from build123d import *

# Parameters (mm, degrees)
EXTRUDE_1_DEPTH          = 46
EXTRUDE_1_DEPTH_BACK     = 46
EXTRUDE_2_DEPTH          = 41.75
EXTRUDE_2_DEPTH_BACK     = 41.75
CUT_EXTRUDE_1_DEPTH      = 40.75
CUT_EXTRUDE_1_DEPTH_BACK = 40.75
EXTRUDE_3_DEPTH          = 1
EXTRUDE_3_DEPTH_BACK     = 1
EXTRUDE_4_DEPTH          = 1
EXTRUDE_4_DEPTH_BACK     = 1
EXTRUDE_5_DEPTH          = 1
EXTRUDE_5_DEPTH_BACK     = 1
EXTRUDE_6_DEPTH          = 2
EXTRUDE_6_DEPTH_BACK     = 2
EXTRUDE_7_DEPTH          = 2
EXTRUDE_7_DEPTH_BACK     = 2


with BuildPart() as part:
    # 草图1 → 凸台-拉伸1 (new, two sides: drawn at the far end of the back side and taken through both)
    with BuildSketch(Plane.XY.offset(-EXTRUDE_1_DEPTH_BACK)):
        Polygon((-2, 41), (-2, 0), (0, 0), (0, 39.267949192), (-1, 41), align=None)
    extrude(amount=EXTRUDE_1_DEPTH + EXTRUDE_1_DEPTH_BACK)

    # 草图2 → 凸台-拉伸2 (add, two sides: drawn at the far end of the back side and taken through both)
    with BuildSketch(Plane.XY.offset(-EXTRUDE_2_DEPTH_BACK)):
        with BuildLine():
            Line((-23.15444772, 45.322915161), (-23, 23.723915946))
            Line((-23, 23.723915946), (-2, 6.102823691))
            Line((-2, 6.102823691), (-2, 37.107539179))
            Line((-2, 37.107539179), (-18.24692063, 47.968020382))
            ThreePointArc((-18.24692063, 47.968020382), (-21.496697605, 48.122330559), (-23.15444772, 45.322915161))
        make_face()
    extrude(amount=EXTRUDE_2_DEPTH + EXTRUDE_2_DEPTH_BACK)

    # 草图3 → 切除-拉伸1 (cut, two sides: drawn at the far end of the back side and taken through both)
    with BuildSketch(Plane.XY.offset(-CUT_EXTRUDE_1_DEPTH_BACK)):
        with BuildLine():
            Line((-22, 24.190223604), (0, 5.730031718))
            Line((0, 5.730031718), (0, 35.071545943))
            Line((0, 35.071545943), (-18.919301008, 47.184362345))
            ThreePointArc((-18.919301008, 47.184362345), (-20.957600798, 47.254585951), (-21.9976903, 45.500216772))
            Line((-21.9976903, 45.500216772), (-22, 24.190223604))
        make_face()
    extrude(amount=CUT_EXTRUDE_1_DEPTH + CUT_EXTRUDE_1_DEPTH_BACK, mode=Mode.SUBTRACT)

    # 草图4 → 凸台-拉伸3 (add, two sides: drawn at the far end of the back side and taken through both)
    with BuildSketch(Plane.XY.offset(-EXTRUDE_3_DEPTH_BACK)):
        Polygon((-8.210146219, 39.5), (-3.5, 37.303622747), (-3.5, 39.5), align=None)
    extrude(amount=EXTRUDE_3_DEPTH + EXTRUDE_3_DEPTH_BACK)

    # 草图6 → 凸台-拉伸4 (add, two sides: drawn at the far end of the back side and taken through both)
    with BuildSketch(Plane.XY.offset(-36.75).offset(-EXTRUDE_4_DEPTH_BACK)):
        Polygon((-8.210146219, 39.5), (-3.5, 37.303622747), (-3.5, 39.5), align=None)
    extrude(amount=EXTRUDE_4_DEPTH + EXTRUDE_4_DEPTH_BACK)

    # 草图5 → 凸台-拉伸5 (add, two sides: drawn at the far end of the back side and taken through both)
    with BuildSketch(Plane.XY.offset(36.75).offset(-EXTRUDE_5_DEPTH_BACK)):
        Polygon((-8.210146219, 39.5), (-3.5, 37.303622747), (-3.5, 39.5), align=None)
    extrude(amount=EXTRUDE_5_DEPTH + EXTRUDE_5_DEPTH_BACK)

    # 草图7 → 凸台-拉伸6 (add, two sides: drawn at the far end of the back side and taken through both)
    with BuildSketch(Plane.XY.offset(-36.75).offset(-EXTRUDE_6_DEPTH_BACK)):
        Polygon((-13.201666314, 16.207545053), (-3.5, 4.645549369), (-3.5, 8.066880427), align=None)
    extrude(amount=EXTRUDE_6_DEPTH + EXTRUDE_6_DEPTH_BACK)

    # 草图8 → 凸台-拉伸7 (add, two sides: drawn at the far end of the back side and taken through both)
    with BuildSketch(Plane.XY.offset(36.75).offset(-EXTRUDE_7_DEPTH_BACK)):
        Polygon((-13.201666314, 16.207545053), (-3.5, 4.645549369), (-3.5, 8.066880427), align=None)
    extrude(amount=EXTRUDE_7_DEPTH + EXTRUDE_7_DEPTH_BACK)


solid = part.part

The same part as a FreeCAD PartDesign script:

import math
import FreeCAD as App
import Part
import Sketcher
from FreeCAD import Vector
Q = App.Units.Quantity


def add_polygon(sketch, points):
    """Adds a closed chain of lines whose ends are joined by coincident constraints."""
    first, n = sketch.GeometryCount, len(points)
    for a, b in zip(points, points[1:] + points[:1]):
        sketch.addGeometry(Part.LineSegment(App.Vector(*a, 0), App.Vector(*b, 0)), False)
    for i in range(n):
        sketch.addConstraint(Sketcher.Constraint("Coincident", first + i, 2, first + (i + 1) % n, 1))

doc = App.newDocument("Part")
body = doc.addObject("PartDesign::Body", "Body")

# Sketch on XY plane
sketch1 = body.newObject("Sketcher::SketchObject", "Sketch")
sketch1.AttachmentSupport = (doc.getObject("XY_Plane"), [""])
sketch1.MapMode = "FlatFace"
add_polygon(sketch1, [(-2, 41), (-2, 0), (0, 0), (0, 39.3), (-1, 41)])  # lines 0-4
sketch1.addConstraint(Sketcher.Constraint("Vertical", 0))
sketch1.addConstraint(Sketcher.Constraint("Horizontal", 1))
sketch1.addConstraint(Sketcher.Constraint("Vertical", 2))
sketch1.addConstraint(Sketcher.Constraint("Horizontal", 4))
sketch1.addConstraint(Sketcher.Constraint("Coincident", 1, 2, -1, 1))
sketch1.addConstraint(Sketcher.Constraint("DistanceX", 1, 1, 1, 2, Q("2 mm")))
sketch1.addConstraint(Sketcher.Constraint("DistanceX", 4, 2, 4, 1, Q("1 mm")))
sketch1.addConstraint(Sketcher.Constraint("DistanceY", 0, 2, 0, 1, Q("41 mm")))
sketch1.addConstraint(Sketcher.Constraint("Angle", 3, Q("120 deg")))
pad1 = body.newObject("PartDesign::Pad", "Pad")
pad1.Profile = sketch1
pad1.Type = "TwoLengths"
pad1.Length = 46
pad1.Length2 = 46

# Sketch on XY plane
sketch2 = body.newObject("Sketcher::SketchObject", "Sketch001")
sketch2.AttachmentSupport = (doc.getObject("XY_Plane"), [""])
sketch2.MapMode = "FlatFace"
sketch2.addGeometry(Part.LineSegment(Vector(-23.2, 45.3, 0), Vector(-23, 23.7, 0)), False)
sketch2.addGeometry(Part.LineSegment(Vector(-23, 23.7, 0), Vector(-2, 6.1, 0)), False)
sketch2.addGeometry(Part.LineSegment(Vector(-2, 6.1, 0), Vector(-2, 37.1, 0)), False)
sketch2.addGeometry(Part.LineSegment(Vector(-2, 37.1, 0), Vector(-18.2, 48, 0)), False)
sketch2.addGeometry(Part.ArcOfCircle(Part.Circle(Vector(-20, 45.3, 0), Vector(0, 0, 1), 3.2), math.radians(56), math.radians(180)), False)
sketch2.addConstraint(Sketcher.Constraint("Coincident", 0, 2, 1, 1))
sketch2.addConstraint(Sketcher.Constraint("Coincident", 1, 2, 2, 1))
sketch2.addConstraint(Sketcher.Constraint("Coincident", 2, 2, 3, 1))
sketch2.addConstraint(Sketcher.Constraint("Tangent", 3, 2, 4, 1))
sketch2.addConstraint(Sketcher.Constraint("Tangent", 4, 2, 0, 1))
sketch2.addConstraint(Sketcher.Constraint("Vertical", 2))
sketch2.addConstraint(Sketcher.Constraint("Angle", 1, Q("-40 deg")))
sketch2.addConstraint(Sketcher.Constraint("DistanceX", 4, 3, -1, 1, Q("20 mm")))
sketch2.addConstraint(Sketcher.Constraint("DistanceX", 0, 2, -1, 1, Q("23 mm")))
sketch2.addConstraint(Sketcher.Constraint("DistanceX", 1, 2, -1, 1, Q("2 mm")))
sketch2.addConstraint(Sketcher.Constraint("Radius", 4, Q("3.154528 mm")))
sketch2.addConstraint(Sketcher.Constraint("DistanceY", 0, 2, 4, 2, Q("21.598999 mm")))
sketch2.addConstraint(Sketcher.Constraint("Distance", 3, Q("19.542581 mm")))
sketch2.addConstraint(Sketcher.Constraint("DistanceY", -1, 1, 4, 3, Q("45.345472 mm")))
pad2 = body.newObject("PartDesign::Pad", "Pad001")
pad2.Profile = sketch2
pad2.Type = "TwoLengths"
pad2.Length = 41.75
pad2.Length2 = 41.75

# Sketch on XY plane
sketch3 = body.newObject("Sketcher::SketchObject", "Sketch002")
sketch3.AttachmentSupport = (doc.getObject("XY_Plane"), [""])
sketch3.MapMode = "FlatFace"
sketch3.addGeometry(Part.LineSegment(Vector(-22, 24.2, 0), Vector(0, 5.7, 0)), False)
sketch3.addGeometry(Part.LineSegment(Vector(0, 5.7, 0), Vector(0, 35.1, 0)), False)
sketch3.addGeometry(Part.LineSegment(Vector(0, 35.1, 0), Vector(-18.9, 47.2, 0)), False)
sketch3.addGeometry(Part.ArcOfCircle(Part.Circle(Vector(-20, 45.5, 0), Vector(0, 0, 1), 2), math.radians(57), math.radians(180)), False)
sketch3.addGeometry(Part.LineSegment(Vector(-22, 45.5, 0), Vector(-22, 24.2, 0)), False)
sketch3.addConstraint(Sketcher.Constraint("Coincident", 0, 2, 1, 1))
sketch3.addConstraint(Sketcher.Constraint("Coincident", 1, 2, 2, 1))
sketch3.addConstraint(Sketcher.Constraint("Tangent", 2, 2, 3, 1))
sketch3.addConstraint(Sketcher.Constraint("Tangent", 3, 2, 4, 1))
sketch3.addConstraint(Sketcher.Constraint("Coincident", 4, 2, 0, 1))
sketch3.addConstraint(Sketcher.Constraint("Vertical", 1))
sketch3.addConstraint(Sketcher.Constraint("PointOnObject", 0, 2, -2))
sketch3.addConstraint(Sketcher.Constraint("Radius", 3, Q("2 mm")))
sketch3.addConstraint(Sketcher.Constraint("Angle", 0, Q("-40 deg")))
sketch3.addConstraint(Sketcher.Constraint("DistanceX", 4, 2, -1, 1, Q("22 mm")))
sketch3.addConstraint(Sketcher.Constraint("DistanceY", -1, 1, 3, 3, Q("45.5 mm")))
sketch3.addConstraint(Sketcher.Constraint("DistanceX", 2, 2, -1, 1, Q("18.919301 mm")))
sketch3.addConstraint(Sketcher.Constraint("DistanceY", 1, 1, 1, 2, Q("29.341514 mm")))
sketch3.addConstraint(Sketcher.Constraint("DistanceX", 3, 3, -1, 1, Q("19.99769 mm")))
pocket1 = body.newObject("PartDesign::Pocket", "Pocket")
pocket1.Profile = sketch3
pocket1.Type = "TwoLengths"
pocket1.Length = 40.75
pocket1.Length2 = 40.75
pocket1.Reversed = True

# Sketch on XY plane
sketch4 = body.newObject("Sketcher::SketchObject", "Sketch003")
sketch4.AttachmentSupport = (doc.getObject("XY_Plane"), [""])
sketch4.MapMode = "FlatFace"
add_polygon(sketch4, [(-8.2, 39.5), (-3.5, 37.3), (-3.5, 39.5)])  # lines 0-2
sketch4.addConstraint(Sketcher.Constraint("Vertical", 1))
sketch4.addConstraint(Sketcher.Constraint("Horizontal", 2))
sketch4.addConstraint(Sketcher.Constraint("Angle", 0, Q("-25 deg")))
sketch4.addConstraint(Sketcher.Constraint("DistanceX", 0, 2, -1, 1, Q("3.5 mm")))
sketch4.addConstraint(Sketcher.Constraint("DistanceY", -1, 1, 1, 2, Q("39.5 mm")))
sketch4.addConstraint(Sketcher.Constraint("Distance", 0, Q("5.197071 mm")))
pad3 = body.newObject("PartDesign::Pad", "Pad002")
pad3.Profile = sketch4
pad3.Type = "TwoLengths"
pad3.Length = 1
pad3.Length2 = 1

# Sketch on XY plane
sketch5 = body.newObject("Sketcher::SketchObject", "Sketch004")
sketch5.AttachmentSupport = (doc.getObject("XY_Plane"), [""])
sketch5.MapMode = "FlatFace"
sketch5.AttachmentOffset = App.Placement(Vector(0, 0, -36.75), App.Rotation())
add_polygon(sketch5, [(-8.2, 39.5), (-3.5, 37.3), (-3.5, 39.5)])  # lines 0-2
sketch5.addConstraint(Sketcher.Constraint("Vertical", 1))
sketch5.addConstraint(Sketcher.Constraint("Horizontal", 2))
sketch5.addConstraint(Sketcher.Constraint("Angle", 0, Q("-25 deg")))
sketch5.addConstraint(Sketcher.Constraint("DistanceX", 0, 2, -1, 1, Q("3.5 mm")))
sketch5.addConstraint(Sketcher.Constraint("DistanceY", -1, 1, 1, 2, Q("39.5 mm")))
sketch5.addConstraint(Sketcher.Constraint("Distance", 0, Q("5.197071 mm")))
pad4 = body.newObject("PartDesign::Pad", "Pad003")
pad4.Profile = sketch5
pad4.Type = "TwoLengths"
pad4.Length = 1
pad4.Length2 = 1

# Sketch on XY plane
sketch6 = body.newObject("Sketcher::SketchObject", "Sketch005")
sketch6.AttachmentSupport = (doc.getObject("XY_Plane"), [""])
sketch6.MapMode = "FlatFace"
sketch6.AttachmentOffset = App.Placement(Vector(0, 0, 36.75), App.Rotation())
add_polygon(sketch6, [(-8.2, 39.5), (-3.5, 37.3), (-3.5, 39.5)])  # lines 0-2
sketch6.addConstraint(Sketcher.Constraint("Vertical", 1))
sketch6.addConstraint(Sketcher.Constraint("Horizontal", 2))
sketch6.addConstraint(Sketcher.Constraint("Angle", 0, Q("-25 deg")))
sketch6.addConstraint(Sketcher.Constraint("DistanceX", 0, 2, -1, 1, Q("3.5 mm")))
sketch6.addConstraint(Sketcher.Constraint("DistanceY", -1, 1, 1, 2, Q("39.5 mm")))
sketch6.addConstraint(Sketcher.Constraint("Distance", 0, Q("5.197071 mm")))
pad5 = body.newObject("PartDesign::Pad", "Pad004")
pad5.Profile = sketch6
pad5.Type = "TwoLengths"
pad5.Length = 1
pad5.Length2 = 1

# Sketch on XY plane
sketch7 = body.newObject("Sketcher::SketchObject", "Sketch006")
sketch7.AttachmentSupport = (doc.getObject("XY_Plane"), [""])
sketch7.MapMode = "FlatFace"
sketch7.AttachmentOffset = App.Placement(Vector(0, 0, -36.75), App.Rotation())
add_polygon(sketch7, [(-13.2, 16.2), (-3.5, 4.6), (-3.5, 8.1)])  # lines 0-2
sketch7.addConstraint(Sketcher.Constraint("Vertical", 1))
sketch7.addConstraint(Sketcher.Constraint("Angle", 0, Q("-50 deg")))
sketch7.addConstraint(Sketcher.Constraint("Angle", 2, Q("140 deg")))
sketch7.addConstraint(Sketcher.Constraint("DistanceX", 0, 2, -1, 1, Q("3.5 mm")))
sketch7.addConstraint(Sketcher.Constraint("DistanceY", 1, 1, 1, 2, Q("3.421331 mm")))
sketch7.addConstraint(Sketcher.Constraint("DistanceY", -1, 1, 0, 2, Q("4.645549 mm")))
pad6 = body.newObject("PartDesign::Pad", "Pad005")
pad6.Profile = sketch7
pad6.Type = "TwoLengths"
pad6.Length = 2
pad6.Length2 = 2

# Sketch on XY plane
sketch8 = body.newObject("Sketcher::SketchObject", "Sketch007")
sketch8.AttachmentSupport = (doc.getObject("XY_Plane"), [""])
sketch8.MapMode = "FlatFace"
sketch8.AttachmentOffset = App.Placement(Vector(0, 0, 36.75), App.Rotation())
add_polygon(sketch8, [(-13.2, 16.2), (-3.5, 4.6), (-3.5, 8.1)])  # lines 0-2
sketch8.addConstraint(Sketcher.Constraint("Vertical", 1))
sketch8.addConstraint(Sketcher.Constraint("Angle", 0, Q("-50 deg")))
sketch8.addConstraint(Sketcher.Constraint("Angle", 2, Q("140 deg")))
sketch8.addConstraint(Sketcher.Constraint("DistanceX", 0, 2, -1, 1, Q("3.5 mm")))
sketch8.addConstraint(Sketcher.Constraint("DistanceY", 1, 1, 1, 2, Q("3.421331 mm")))
sketch8.addConstraint(Sketcher.Constraint("DistanceY", -1, 1, 0, 2, Q("4.645549 mm")))
pad7 = body.newObject("PartDesign::Pad", "Pad006")
pad7.Profile = sketch8
pad7.Type = "TwoLengths"
pad7.Length = 2
pad7.Length2 = 2

doc.recompute()
